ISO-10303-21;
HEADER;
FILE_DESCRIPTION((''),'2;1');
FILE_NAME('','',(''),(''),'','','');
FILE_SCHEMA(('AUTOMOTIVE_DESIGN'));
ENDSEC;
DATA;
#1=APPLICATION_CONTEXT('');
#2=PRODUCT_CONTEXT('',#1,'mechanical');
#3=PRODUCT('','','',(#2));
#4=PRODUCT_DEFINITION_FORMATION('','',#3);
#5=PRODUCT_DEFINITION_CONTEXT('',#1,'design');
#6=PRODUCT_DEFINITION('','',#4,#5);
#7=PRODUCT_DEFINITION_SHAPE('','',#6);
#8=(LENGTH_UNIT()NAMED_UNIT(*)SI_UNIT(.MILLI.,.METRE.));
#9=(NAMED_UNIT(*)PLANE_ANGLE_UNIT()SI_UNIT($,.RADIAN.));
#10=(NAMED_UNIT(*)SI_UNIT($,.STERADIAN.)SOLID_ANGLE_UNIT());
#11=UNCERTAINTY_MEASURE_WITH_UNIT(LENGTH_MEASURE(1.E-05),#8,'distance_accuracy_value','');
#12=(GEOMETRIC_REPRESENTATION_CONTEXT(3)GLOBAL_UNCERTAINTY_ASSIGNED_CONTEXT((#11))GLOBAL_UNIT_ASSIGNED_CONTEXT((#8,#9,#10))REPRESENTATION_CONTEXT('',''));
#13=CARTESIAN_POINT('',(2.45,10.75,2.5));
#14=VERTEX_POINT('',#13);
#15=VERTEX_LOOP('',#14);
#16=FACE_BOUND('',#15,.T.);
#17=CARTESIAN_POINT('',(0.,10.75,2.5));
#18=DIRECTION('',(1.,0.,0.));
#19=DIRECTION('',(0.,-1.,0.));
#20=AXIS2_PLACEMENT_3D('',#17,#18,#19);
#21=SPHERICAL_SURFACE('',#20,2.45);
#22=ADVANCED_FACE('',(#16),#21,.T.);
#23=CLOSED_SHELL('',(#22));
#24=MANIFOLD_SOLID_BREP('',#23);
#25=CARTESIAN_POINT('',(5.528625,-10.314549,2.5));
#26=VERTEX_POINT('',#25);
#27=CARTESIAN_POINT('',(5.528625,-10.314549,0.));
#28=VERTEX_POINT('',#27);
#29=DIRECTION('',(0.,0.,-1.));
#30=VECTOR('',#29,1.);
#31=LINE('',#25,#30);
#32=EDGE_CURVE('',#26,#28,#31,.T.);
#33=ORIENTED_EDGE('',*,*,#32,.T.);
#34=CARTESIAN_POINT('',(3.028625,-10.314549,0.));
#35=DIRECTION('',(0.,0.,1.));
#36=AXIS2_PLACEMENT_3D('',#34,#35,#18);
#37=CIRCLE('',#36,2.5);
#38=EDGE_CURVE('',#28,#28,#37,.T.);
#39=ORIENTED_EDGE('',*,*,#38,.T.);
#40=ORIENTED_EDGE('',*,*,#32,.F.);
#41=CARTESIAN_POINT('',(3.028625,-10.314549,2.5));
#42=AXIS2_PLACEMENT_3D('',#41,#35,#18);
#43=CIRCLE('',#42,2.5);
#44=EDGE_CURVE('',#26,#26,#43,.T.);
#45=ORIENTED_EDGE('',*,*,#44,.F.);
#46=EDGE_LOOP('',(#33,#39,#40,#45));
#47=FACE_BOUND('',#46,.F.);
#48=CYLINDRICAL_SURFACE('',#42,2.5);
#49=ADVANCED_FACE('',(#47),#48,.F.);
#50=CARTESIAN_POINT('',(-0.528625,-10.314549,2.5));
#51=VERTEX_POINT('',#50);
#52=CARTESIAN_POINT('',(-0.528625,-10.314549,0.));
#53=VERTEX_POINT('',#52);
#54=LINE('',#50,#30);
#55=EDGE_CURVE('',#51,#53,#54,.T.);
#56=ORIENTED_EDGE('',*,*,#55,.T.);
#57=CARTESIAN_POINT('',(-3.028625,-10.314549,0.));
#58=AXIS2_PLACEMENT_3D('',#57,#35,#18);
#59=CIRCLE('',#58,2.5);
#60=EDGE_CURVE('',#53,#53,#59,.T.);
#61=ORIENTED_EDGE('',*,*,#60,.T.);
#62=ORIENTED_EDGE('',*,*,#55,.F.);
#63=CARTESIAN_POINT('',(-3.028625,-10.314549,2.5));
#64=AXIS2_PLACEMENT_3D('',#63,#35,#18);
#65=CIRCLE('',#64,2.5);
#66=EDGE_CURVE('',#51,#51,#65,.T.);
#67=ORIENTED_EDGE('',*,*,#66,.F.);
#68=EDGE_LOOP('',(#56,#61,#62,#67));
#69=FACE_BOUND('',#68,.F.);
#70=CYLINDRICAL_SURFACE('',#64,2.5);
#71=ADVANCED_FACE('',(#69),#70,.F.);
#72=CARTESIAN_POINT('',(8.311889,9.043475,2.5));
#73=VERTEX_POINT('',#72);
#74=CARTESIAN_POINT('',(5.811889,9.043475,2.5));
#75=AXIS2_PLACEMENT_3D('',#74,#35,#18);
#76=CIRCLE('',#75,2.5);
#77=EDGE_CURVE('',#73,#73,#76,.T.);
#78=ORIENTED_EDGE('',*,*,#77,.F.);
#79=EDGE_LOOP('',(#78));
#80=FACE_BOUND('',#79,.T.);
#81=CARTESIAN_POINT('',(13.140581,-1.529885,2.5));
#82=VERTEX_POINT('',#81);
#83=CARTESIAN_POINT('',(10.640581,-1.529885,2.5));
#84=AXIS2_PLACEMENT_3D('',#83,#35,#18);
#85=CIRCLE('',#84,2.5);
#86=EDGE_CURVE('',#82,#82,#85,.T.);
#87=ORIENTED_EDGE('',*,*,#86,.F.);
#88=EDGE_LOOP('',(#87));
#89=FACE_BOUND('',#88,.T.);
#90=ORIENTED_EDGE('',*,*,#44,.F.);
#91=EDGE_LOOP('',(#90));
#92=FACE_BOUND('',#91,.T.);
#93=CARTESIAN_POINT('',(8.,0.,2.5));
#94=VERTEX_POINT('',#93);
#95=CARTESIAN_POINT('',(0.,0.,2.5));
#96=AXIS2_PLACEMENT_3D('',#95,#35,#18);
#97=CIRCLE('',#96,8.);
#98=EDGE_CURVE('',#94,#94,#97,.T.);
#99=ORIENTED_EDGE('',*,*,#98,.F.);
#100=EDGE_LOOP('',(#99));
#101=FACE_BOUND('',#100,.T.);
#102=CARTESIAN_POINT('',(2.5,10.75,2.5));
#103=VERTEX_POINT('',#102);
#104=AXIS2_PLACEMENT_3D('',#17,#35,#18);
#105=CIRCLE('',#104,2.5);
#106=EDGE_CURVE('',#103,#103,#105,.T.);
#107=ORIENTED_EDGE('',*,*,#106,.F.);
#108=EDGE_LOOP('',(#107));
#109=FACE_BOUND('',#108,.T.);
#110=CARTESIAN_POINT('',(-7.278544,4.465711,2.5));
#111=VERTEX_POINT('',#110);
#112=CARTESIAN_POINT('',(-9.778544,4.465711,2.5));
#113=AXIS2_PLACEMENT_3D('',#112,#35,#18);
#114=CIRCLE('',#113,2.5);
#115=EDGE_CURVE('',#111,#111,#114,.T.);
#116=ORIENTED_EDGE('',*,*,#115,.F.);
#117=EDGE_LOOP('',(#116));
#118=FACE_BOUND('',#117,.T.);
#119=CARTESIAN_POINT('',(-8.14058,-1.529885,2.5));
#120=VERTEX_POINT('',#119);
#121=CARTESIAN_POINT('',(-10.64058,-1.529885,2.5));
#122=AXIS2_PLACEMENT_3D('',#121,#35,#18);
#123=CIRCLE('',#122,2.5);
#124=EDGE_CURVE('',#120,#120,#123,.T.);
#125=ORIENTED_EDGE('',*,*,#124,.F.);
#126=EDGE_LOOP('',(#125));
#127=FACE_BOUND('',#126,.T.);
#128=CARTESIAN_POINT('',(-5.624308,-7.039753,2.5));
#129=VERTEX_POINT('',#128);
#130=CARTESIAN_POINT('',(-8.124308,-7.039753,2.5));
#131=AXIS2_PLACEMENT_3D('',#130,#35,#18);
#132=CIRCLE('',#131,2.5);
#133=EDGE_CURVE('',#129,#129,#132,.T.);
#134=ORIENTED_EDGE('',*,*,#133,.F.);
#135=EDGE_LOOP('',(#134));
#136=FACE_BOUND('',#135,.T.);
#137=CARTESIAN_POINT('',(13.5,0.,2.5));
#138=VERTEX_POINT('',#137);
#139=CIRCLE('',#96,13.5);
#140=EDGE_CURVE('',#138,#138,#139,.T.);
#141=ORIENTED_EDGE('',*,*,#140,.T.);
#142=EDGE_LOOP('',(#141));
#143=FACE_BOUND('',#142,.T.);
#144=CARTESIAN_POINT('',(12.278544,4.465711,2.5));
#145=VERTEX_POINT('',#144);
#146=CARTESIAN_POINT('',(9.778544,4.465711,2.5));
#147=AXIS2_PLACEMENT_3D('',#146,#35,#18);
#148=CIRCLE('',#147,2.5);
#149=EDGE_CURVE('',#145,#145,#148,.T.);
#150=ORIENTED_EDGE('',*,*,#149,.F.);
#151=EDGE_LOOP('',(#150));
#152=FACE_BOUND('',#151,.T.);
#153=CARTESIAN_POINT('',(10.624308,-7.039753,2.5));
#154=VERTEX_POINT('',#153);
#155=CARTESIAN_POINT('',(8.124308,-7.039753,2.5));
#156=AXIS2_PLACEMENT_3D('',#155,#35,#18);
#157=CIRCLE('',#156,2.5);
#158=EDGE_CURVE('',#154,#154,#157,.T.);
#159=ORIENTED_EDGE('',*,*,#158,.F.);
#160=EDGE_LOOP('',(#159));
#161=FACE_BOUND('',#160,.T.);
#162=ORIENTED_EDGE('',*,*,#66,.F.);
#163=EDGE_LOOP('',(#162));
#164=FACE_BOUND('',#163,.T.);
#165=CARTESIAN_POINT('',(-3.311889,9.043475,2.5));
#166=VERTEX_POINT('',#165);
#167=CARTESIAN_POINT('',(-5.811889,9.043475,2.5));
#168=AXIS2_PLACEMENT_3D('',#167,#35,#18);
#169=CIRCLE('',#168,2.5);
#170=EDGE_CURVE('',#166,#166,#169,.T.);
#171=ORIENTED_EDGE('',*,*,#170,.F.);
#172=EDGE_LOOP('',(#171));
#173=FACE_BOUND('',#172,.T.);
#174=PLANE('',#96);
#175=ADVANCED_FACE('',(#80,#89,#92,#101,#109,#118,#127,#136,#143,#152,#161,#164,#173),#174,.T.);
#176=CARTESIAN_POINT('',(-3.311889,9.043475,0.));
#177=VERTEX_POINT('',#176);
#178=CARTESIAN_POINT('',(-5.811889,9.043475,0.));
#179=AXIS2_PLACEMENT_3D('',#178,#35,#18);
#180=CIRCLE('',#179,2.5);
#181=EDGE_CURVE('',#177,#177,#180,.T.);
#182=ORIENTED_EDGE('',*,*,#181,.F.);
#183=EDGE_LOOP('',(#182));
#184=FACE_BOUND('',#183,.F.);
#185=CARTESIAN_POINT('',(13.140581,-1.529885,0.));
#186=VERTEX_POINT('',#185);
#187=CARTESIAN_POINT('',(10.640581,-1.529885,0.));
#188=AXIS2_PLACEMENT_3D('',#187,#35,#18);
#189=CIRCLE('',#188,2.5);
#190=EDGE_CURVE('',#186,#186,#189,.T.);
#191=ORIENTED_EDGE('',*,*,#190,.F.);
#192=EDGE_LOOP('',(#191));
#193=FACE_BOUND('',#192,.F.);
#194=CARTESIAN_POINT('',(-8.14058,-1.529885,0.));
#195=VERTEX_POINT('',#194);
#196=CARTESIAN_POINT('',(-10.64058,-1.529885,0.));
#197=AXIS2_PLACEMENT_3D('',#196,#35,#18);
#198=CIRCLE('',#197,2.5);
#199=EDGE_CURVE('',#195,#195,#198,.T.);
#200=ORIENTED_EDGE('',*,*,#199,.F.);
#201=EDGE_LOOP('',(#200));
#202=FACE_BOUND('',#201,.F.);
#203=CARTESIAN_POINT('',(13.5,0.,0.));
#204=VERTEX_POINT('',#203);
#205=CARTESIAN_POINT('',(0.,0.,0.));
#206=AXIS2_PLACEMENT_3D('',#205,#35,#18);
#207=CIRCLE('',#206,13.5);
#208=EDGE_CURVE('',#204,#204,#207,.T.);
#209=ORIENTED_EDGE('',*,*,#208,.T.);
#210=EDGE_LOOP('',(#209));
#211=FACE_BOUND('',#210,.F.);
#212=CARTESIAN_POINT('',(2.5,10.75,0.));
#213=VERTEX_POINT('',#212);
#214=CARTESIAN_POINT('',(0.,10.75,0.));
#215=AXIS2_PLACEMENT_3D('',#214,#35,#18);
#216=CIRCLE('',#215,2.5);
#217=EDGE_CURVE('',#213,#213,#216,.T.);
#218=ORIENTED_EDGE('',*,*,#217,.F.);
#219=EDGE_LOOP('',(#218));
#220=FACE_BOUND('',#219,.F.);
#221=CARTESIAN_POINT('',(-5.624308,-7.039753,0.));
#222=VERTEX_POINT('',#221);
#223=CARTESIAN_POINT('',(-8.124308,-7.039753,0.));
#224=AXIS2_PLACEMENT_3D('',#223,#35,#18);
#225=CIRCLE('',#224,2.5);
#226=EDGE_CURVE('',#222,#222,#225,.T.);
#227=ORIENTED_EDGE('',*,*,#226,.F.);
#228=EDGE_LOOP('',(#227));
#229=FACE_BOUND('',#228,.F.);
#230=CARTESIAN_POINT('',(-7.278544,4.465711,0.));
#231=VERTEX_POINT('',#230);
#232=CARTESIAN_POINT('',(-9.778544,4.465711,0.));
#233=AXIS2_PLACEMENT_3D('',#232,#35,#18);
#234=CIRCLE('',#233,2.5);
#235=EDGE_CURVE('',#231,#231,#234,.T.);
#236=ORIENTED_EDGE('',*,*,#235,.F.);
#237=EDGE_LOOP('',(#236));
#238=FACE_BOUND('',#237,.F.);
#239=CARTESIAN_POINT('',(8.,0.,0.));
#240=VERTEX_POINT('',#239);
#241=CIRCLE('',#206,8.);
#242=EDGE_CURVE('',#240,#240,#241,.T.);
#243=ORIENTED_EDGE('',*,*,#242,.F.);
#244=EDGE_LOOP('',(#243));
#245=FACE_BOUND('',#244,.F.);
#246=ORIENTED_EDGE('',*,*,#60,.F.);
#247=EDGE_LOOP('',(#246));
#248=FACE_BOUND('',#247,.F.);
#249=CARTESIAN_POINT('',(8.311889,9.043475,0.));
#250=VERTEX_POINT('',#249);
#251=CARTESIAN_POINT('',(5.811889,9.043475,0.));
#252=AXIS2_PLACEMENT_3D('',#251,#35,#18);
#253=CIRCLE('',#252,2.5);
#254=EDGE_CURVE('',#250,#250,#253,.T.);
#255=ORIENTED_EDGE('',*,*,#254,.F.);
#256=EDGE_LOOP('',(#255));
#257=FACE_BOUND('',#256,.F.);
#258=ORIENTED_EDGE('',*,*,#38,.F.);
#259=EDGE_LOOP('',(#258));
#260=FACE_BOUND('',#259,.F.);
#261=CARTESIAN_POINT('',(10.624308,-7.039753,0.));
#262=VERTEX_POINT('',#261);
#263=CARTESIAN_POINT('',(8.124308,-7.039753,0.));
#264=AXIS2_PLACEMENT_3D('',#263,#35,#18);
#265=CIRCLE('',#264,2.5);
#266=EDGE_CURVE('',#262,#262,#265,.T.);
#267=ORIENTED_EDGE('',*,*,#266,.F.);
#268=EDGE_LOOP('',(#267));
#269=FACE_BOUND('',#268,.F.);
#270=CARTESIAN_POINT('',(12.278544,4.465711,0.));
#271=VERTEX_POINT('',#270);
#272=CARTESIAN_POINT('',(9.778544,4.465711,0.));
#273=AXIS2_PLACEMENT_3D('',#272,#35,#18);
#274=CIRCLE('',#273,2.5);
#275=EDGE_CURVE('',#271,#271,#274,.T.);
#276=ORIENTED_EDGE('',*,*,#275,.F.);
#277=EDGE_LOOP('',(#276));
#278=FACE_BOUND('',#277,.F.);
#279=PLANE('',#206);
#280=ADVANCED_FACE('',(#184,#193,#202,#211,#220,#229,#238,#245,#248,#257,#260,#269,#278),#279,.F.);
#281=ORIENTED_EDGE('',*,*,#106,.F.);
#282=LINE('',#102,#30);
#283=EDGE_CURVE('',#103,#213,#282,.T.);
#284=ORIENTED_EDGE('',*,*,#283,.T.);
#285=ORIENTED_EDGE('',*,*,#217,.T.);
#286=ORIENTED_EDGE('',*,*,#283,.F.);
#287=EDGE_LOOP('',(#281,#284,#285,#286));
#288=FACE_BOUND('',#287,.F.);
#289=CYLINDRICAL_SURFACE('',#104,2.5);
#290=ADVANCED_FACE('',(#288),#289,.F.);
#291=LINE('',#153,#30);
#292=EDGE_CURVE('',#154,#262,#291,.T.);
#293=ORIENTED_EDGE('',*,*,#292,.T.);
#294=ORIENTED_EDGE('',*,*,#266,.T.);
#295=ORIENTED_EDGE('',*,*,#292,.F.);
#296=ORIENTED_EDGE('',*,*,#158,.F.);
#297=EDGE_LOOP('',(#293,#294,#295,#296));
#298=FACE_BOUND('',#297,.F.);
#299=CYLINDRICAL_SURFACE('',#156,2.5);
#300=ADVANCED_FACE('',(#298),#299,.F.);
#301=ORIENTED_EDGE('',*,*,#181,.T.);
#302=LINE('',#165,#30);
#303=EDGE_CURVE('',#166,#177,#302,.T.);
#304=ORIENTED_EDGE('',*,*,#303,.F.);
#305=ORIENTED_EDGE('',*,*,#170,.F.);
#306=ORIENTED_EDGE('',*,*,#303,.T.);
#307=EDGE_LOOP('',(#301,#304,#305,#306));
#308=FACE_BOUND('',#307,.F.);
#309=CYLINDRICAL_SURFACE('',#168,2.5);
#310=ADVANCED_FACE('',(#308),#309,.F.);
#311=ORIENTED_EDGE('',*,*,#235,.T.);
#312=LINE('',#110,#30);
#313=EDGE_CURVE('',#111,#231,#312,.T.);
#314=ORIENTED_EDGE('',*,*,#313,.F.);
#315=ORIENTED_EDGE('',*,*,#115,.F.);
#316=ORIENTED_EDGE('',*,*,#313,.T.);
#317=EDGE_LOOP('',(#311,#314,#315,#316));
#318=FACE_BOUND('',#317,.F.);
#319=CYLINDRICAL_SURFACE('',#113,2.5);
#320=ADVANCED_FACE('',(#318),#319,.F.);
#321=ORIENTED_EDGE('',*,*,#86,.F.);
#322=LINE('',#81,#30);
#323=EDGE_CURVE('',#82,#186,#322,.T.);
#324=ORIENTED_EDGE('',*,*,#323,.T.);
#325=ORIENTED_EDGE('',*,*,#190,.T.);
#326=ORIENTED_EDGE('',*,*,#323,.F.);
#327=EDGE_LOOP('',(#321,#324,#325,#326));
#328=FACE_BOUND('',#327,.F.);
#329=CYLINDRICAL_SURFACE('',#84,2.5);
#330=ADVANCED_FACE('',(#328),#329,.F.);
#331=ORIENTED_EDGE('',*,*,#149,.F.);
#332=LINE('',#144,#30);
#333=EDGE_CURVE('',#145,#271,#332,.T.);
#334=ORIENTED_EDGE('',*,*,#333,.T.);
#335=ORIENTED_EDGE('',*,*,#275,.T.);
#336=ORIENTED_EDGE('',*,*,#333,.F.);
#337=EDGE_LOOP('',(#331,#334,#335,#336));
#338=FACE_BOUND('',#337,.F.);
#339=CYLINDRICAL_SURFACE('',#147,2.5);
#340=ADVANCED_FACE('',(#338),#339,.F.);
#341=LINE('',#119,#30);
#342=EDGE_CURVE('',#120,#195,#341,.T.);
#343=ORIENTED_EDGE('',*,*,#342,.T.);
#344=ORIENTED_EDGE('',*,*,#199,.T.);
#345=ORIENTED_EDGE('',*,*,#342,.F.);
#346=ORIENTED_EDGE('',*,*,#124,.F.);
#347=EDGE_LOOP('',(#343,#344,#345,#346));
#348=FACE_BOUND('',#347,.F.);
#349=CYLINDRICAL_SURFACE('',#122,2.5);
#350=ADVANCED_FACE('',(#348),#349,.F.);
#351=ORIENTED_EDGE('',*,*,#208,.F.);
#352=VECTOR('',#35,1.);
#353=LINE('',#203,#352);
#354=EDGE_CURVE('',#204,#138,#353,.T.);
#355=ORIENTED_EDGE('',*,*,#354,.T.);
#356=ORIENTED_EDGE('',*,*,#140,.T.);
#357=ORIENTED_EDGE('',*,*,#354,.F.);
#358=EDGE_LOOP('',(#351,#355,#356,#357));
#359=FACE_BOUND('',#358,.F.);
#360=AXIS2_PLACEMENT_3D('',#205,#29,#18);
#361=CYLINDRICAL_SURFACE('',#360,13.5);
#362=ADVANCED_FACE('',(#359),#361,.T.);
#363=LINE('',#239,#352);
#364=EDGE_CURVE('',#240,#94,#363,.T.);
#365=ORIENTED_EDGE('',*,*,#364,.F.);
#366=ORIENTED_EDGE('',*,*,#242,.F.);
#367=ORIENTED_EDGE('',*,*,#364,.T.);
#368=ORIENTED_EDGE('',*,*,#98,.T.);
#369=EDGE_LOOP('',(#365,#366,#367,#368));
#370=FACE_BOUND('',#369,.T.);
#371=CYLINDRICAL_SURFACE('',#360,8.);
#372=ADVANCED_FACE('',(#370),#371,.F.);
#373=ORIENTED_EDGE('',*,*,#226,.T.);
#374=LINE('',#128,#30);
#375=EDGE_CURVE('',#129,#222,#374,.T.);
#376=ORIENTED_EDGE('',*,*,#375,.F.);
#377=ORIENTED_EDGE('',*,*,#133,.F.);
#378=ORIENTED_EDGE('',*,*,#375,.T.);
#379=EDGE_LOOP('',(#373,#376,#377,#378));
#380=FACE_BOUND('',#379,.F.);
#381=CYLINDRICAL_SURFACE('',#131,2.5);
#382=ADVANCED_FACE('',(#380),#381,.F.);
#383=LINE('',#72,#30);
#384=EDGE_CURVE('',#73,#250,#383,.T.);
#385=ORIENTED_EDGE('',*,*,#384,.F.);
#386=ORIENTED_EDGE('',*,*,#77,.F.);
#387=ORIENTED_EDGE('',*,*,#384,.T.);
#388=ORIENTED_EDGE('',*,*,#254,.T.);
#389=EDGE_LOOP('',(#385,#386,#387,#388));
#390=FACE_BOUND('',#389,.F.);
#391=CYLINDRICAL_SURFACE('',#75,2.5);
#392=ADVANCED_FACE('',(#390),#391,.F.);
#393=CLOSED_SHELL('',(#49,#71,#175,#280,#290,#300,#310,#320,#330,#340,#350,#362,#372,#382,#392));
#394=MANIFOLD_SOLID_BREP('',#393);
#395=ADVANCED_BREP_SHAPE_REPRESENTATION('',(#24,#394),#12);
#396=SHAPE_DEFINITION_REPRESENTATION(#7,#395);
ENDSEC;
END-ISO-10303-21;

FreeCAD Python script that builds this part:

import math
import FreeCAD as App
import Part
import Sketcher
from FreeCAD import Vector

doc = App.newDocument("Part")
body = doc.addObject("PartDesign::Body", "Body")

sketch1 = doc.addObject("Sketcher::SketchObject", "Sketch")
body.addObject(sketch1)
sketch1.AttachmentSupport = (doc.XY_Plane, [""])
sketch1.MapMode = "FlatFace"
sketch1.addGeometry([
    Part.Circle(Vector(0, 0, 0), Vector(0, 0, 1), 14),
    Part.Circle(Vector(0, 0, 0), Vector(0, 0, 1), 8),
], False)
sketch1.addConstraint([
    Sketcher.Constraint("Coincident", 0, 3, -1, 1),
    Sketcher.Constraint("Coincident", 1, 3, -1, 1),
    Sketcher.Constraint("Diameter", 0, 27.0),
    Sketcher.Constraint("Diameter", 1, 16.0),
])
pad1 = doc.addObject("PartDesign::Pad", "Pad")
body.addObject(pad1)
pad1.Profile = sketch1
pad1.Length = 2.5

sketch2 = doc.addObject("Sketcher::SketchObject", "Sketch001")
body.addObject(sketch2)
sketch2.AttachmentSupport = (doc.XY_Plane, [""])
sketch2.MapMode = "FlatFace"
sketch2.AttachmentOffset = App.Placement(Vector(0, 0, 2.5), App.Rotation())
sketch2.addGeometry([
    Part.Circle(Vector(0, 10.8, 0), Vector(0, 0, 1), 2.5),
    Part.Circle(Vector(5.8, 9, 0), Vector(0, 0, 1), 2.5),
    Part.Circle(Vector(9.8, 4.5, 0), Vector(0, 0, 1), 2.5),
    Part.Circle(Vector(10.6, -1.5, 0), Vector(0, 0, 1), 2.5),
    Part.Circle(Vector(8.1, -7, 0), Vector(0, 0, 1), 2.5),
    Part.Circle(Vector(3, -10.3, 0), Vector(0, 0, 1), 2.5),
    Part.Circle(Vector(-3, -10.3, 0), Vector(0, 0, 1), 2.5),
    Part.Circle(Vector(-8.1, -7, 0), Vector(0, 0, 1), 2.5),
    Part.Circle(Vector(-10.6, -1.5, 0), Vector(0, 0, 1), 2.5),
    Part.Circle(Vector(-9.8, 4.5, 0), Vector(0, 0, 1), 2.5),
    Part.Circle(Vector(-5.8, 9, 0), Vector(0, 0, 1), 2.5),
], False)
sketch2.addConstraint([
    Sketcher.Constraint("Equal", 0, 1),
    Sketcher.Constraint("Equal", 1, 2),
    Sketcher.Constraint("Equal", 2, 3),
    Sketcher.Constraint("Equal", 3, 4),
    Sketcher.Constraint("Equal", 4, 5),
    Sketcher.Constraint("Equal", 5, 6),
    Sketcher.Constraint("Equal", 6, 7),
    Sketcher.Constraint("Equal", 7, 8),
    Sketcher.Constraint("Equal", 8, 9),
    Sketcher.Constraint("Equal", 9, 10),
    Sketcher.Constraint("Symmetric", 5, 3, 6, 3, -2),
    Sketcher.Constraint("Symmetric", 4, 3, 7, 3, -2),
    Sketcher.Constraint("Symmetric", 3, 3, 8, 3, -2),
    Sketcher.Constraint("Symmetric", 2, 3, 9, 3, -2),
    Sketcher.Constraint("Symmetric", 1, 3, 10, 3, -2),
    Sketcher.Constraint("PointOnObject", 0, 3, -2),
    Sketcher.Constraint("Diameter", 0, 5.0),
    Sketcher.Constraint("DistanceY", -1, 1, 0, 3, 10.75),
    Sketcher.Constraint("DistanceX", -1, 1, 1, 3, 5.811889),
    Sketcher.Constraint("DistanceY", -1, 1, 2, 3, 4.465711),
    Sketcher.Constraint("DistanceX", -1, 1, 3, 3, 10.640581),
    Sketcher.Constraint("DistanceY", 5, 3, -1, 1, 10.314549),
    Sketcher.Constraint("DistanceY", 3, 3, 1, 3, 10.57336),
    Sketcher.Constraint("DistanceX", 1, 3, 4, 3, 2.312419),
    Sketcher.Constraint("DistanceY", 4, 3, 1, 3, 16.083228),
    Sketcher.Constraint("DistanceX", 5, 3, 2, 3, 6.749919),
    Sketcher.Constraint("DistanceX", 6, 3, 5, 3, 6.05725),
    Sketcher.Constraint("DistanceY", -1, 1, 1, 3, 9.043475),
])
pocket1 = doc.addObject("PartDesign::Pocket", "Pocket")
body.addObject(pocket1)
pocket1.Profile = sketch2
pocket1.Length = 2.5
body2 = doc.addObject("PartDesign::Body", "Body001")

sketch3 = doc.addObject("Sketcher::SketchObject", "Sketch002")
body2.addObject(sketch3)
sketch3.AttachmentSupport = (doc.getObject("XY_Plane001"), [""])
sketch3.MapMode = "FlatFace"
sketch3.AttachmentOffset = App.Placement(Vector(0, 0, 2.5), App.Rotation())
sketch3.addGeometry([
    Part.LineSegment(Vector(2.5, 10.8, 0), Vector(-2.5, 10.8, 0)),
    Part.ArcOfCircle(Part.Circle(Vector(0, 10.8, 0), Vector(0, 0, 1), 2.5), math.radians(180), math.radians(360)),
], False)
sketch3.addGeometry(Part.LineSegment(Vector(-2.5, 10.8, 0), Vector(2.5, 10.8, 0)), True)
sketch3.addConstraint([
    Sketcher.Constraint("Coincident", 0, 1, 1, 2),
    Sketcher.Constraint("Coincident", 1, 1, 0, 2),
    Sketcher.Constraint("Horizontal", 0),
    Sketcher.Constraint("Horizontal", 2),
    Sketcher.Constraint("Coincident", 2, 1, 1, 1),
    Sketcher.Constraint("PointOnObject", 1, 3, -2),
    Sketcher.Constraint("Horizontal", 1, 3, 0, 1),
    Sketcher.Constraint("Equal", 0, 2),
    Sketcher.Constraint("Radius", 1, 2.45),
    Sketcher.Constraint("DistanceY", -1, 1, 1, 3, 10.75),
])
revolution = doc.addObject("PartDesign::Revolution", "Revolution")
body2.addObject(revolution)
revolution.Profile = sketch3
revolution.ReferenceAxis = (sketch3, ["Axis0"])
revolution.Angle = 360

doc.recompute()
